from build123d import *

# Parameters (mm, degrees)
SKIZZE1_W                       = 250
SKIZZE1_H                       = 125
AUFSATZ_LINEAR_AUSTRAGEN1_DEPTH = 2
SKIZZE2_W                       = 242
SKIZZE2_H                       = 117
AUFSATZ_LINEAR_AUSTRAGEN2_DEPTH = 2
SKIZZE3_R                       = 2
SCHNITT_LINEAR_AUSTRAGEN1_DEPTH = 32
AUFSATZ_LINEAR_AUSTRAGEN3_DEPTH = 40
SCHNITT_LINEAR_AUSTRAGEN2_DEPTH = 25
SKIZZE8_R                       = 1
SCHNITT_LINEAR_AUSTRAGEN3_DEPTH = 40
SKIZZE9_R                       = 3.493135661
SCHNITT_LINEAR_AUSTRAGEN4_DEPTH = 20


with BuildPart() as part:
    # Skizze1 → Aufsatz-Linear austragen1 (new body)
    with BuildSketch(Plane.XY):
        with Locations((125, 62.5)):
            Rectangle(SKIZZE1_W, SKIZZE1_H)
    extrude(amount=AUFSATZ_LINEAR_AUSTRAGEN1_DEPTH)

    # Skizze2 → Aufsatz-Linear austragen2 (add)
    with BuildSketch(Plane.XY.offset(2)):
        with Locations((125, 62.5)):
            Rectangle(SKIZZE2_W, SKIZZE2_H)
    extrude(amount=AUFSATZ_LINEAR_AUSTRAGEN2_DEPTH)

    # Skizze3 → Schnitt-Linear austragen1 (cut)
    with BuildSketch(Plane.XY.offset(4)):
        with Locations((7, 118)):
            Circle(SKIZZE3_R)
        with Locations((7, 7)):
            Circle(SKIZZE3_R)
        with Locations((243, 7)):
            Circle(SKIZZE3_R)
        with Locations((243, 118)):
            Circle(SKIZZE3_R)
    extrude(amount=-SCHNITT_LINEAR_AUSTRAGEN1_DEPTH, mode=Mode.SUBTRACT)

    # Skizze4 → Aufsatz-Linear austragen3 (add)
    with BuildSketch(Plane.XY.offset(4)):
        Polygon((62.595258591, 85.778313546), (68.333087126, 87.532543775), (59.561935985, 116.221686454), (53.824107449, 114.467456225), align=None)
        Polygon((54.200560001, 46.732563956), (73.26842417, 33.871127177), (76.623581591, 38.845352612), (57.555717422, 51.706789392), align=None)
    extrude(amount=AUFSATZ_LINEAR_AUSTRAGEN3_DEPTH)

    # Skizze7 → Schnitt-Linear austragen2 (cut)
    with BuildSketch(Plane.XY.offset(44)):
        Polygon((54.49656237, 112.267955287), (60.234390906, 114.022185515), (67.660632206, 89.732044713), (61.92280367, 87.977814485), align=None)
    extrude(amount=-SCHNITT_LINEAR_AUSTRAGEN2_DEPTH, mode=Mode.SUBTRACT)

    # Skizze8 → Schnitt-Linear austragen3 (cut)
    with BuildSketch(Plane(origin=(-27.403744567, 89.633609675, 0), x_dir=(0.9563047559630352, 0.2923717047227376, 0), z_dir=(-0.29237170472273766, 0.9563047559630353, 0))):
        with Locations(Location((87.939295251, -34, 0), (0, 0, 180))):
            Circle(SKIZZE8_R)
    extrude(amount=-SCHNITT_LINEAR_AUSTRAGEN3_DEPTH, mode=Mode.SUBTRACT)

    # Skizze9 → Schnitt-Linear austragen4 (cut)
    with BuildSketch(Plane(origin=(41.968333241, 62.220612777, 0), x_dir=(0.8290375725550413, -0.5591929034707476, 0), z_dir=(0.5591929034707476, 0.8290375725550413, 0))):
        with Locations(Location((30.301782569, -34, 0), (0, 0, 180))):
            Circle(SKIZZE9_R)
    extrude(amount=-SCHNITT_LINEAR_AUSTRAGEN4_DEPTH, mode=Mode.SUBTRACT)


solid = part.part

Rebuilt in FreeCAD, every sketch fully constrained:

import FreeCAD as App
import Part
import Sketcher
from FreeCAD import Vector
Q = App.Units.Quantity


def add_polygon(sketch, points):
    """Adds a closed chain of lines whose ends are joined by coincident constraints."""
    first, n = sketch.GeometryCount, len(points)
    for a, b in zip(points, points[1:] + points[:1]):
        sketch.addGeometry(Part.LineSegment(App.Vector(*a, 0), App.Vector(*b, 0)), False)
    for i in range(n):
        sketch.addConstraint(Sketcher.Constraint("Coincident", first + i, 2, first + (i + 1) % n, 1))

doc = App.newDocument("Part")
body = doc.addObject("PartDesign::Body", "Body")

sketch1 = doc.addObject("Sketcher::SketchObject", "Sketch")
body.addObject(sketch1)
sketch1.AttachmentSupport = (doc.XY_Plane, [""])
sketch1.MapMode = "FlatFace"
add_polygon(sketch1, [(0, 125), (0, 0), (250, 0), (250, 125)])
sketch1.addConstraint([
    Sketcher.Constraint("Vertical", 0),
    Sketcher.Constraint("Horizontal", 1),
    Sketcher.Constraint("Vertical", 2),
    Sketcher.Constraint("Horizontal", 3),
    Sketcher.Constraint("Coincident", 0, 2, -1, 1),
    Sketcher.Constraint("DistanceX", 1, 1, 1, 2, 250.0),
    Sketcher.Constraint("DistanceY", 0, 2, 0, 1, 125.0),
])
pad1 = doc.addObject("PartDesign::Pad", "Pad")
body.addObject(pad1)
pad1.Profile = sketch1
pad1.Length = 2

sketch2 = doc.addObject("Sketcher::SketchObject", "Sketch001")
body.addObject(sketch2)
sketch2.AttachmentSupport = (doc.XY_Plane, [""])
sketch2.MapMode = "FlatFace"
sketch2.AttachmentOffset = App.Placement(Vector(0, 0, 2), App.Rotation())
add_polygon(sketch2, [(4, 121), (4, 4), (246, 4), (246, 121)])
sketch2.addConstraint([
    Sketcher.Constraint("Vertical", 0),
    Sketcher.Constraint("Horizontal", 1),
    Sketcher.Constraint("Vertical", 2),
    Sketcher.Constraint("Horizontal", 3),
    Sketcher.Constraint("DistanceX", 1, 1, 1, 2, 242.0),
    Sketcher.Constraint("DistanceY", 0, 2, 0, 1, 117.0),
    Sketcher.Constraint("DistanceX", -1, 1, 0, 2, 4.0),
    Sketcher.Constraint("DistanceY", -1, 1, 0, 2, 4.0),
])
pad2 = doc.addObject("PartDesign::Pad", "Pad001")
body.addObject(pad2)
pad2.Profile = sketch2
pad2.Length = 2

sketch3 = doc.addObject("Sketcher::SketchObject", "Sketch002")
body.addObject(sketch3)
sketch3.AttachmentSupport = (doc.XY_Plane, [""])
sketch3.MapMode = "FlatFace"
sketch3.AttachmentOffset = App.Placement(Vector(0, 0, 4), App.Rotation())
sketch3.addGeometry([
    Part.Circle(Vector(7, 118, 0), Vector(0, 0, 1), 2),
    Part.Circle(Vector(7, 7, 0), Vector(0, 0, 1), 2),
    Part.Circle(Vector(243, 7, 0), Vector(0, 0, 1), 2),
    Part.Circle(Vector(243, 118, 0), Vector(0, 0, 1), 2),
], False)
sketch3.addConstraint([
    Sketcher.Constraint("Equal", 0, 1),
    Sketcher.Constraint("Equal", 1, 2),
    Sketcher.Constraint("Equal", 2, 3),
    Sketcher.Constraint("Horizontal", 1, 3, 2, 3),
    Sketcher.Constraint("Horizontal", 0, 3, 3, 3),
    Sketcher.Constraint("Vertical", 0, 3, 1, 3),
    Sketcher.Constraint("Vertical", 2, 3, 3, 3),
    Sketcher.Constraint("Diameter", 0, 4.0),
    Sketcher.Constraint("DistanceX", -1, 1, 0, 3, 7.0),
    Sketcher.Constraint("DistanceY", -1, 1, 0, 3, 118.0),
    Sketcher.Constraint("DistanceY", -1, 1, 1, 3, 7.0),
    Sketcher.Constraint("DistanceX", -1, 1, 2, 3, 243.0),
])
pocket1 = doc.addObject("PartDesign::Pocket", "Pocket")
body.addObject(pocket1)
pocket1.Profile = sketch3
pocket1.Length = 32

sketch4 = doc.addObject("Sketcher::SketchObject", "Sketch003")
body.addObject(sketch4)
sketch4.AttachmentSupport = (doc.XY_Plane, [""])
sketch4.MapMode = "FlatFace"
sketch4.AttachmentOffset = App.Placement(Vector(0, 0, 4), App.Rotation())
add_polygon(sketch4, [(62.595259, 85.778314), (68.333087, 87.532544), (59.561936, 116.221686), (53.824107, 114.467456)])
add_polygon(sketch4, [(54.20056, 46.732564), (73.268424, 33.871127), (76.623582, 38.845353), (57.555717, 51.706789)])
sketch4.addConstraint([
    Sketcher.Constraint("Perpendicular", 0, 1),
    Sketcher.Constraint("Perpendicular", 1, 2),
    Sketcher.Constraint("Perpendicular", 2, 3),
    Sketcher.Constraint("Perpendicular", 4, 5),
    Sketcher.Constraint("Perpendicular", 5, 6),
    Sketcher.Constraint("Perpendicular", 6, 7),
    Sketcher.Constraint("Equal", 2, 5),
    Sketcher.Constraint("Angle", 0, Q("17 deg")),
    Sketcher.Constraint("Angle", 4, Q("-34 deg")),
    Sketcher.Constraint("Distance", 0, 6.0),
    Sketcher.Constraint("Distance", 1, 30.0),
    Sketcher.Constraint("Distance", 4, 23.0),
    Sketcher.Constraint("DistanceX", 7, 2, 3, 2, 8.394699),
    Sketcher.Constraint("DistanceX", -1, 1, 3, 2, 62.595259),
    Sketcher.Constraint("DistanceY", -1, 1, 6, 2, 51.706789),
    Sketcher.Constraint("DistanceY", 4, 2, 2, 2, 80.596329),
])
pad3 = doc.addObject("PartDesign::Pad", "Pad002")
body.addObject(pad3)
pad3.Profile = sketch4
pad3.Length = 40

sketch5 = doc.addObject("Sketcher::SketchObject", "Sketch004")
body.addObject(sketch5)
sketch5.AttachmentSupport = (doc.XY_Plane, [""])
sketch5.MapMode = "FlatFace"
sketch5.AttachmentOffset = App.Placement(Vector(0, 0, 44), App.Rotation())
add_polygon(sketch5, [(60.234391, 114.022186), (54.496562, 112.267955), (61.922804, 87.977814), (67.660632, 89.732045)])
sketch5.addConstraint([
    Sketcher.Constraint("Perpendicular", 0, 1),
    Sketcher.Constraint("Perpendicular", 1, 2),
    Sketcher.Constraint("Perpendicular", 2, 3),
    Sketcher.Constraint("Angle", 0, Q("-163 deg")),
    Sketcher.Constraint("Distance", 0, 6.0),
    Sketcher.Constraint("Distance", 1, 25.4),
    Sketcher.Constraint("DistanceX", -1, 1, 3, 2, 60.234391),
    Sketcher.Constraint("DistanceY", -1, 1, 0, 2, 112.267955),
])
pocket2 = doc.addObject("PartDesign::Pocket", "Pocket001")
body.addObject(pocket2)
pocket2.Profile = sketch5
pocket2.Length = 25

sketch6 = doc.addObject("Sketcher::SketchObject", "Sketch005")
body.addObject(sketch6)
sketch6.Placement = App.Placement(Vector(-27.403745, 89.63361, 0), App.Rotation(Vector(0.956304756, 0.292371705, 0), Vector(0, 0, -1), Vector(-0.292371705, 0.956304756, 0), "ZXY"))
sketch6.addGeometry(Part.Circle(Vector(87.939295, -34, 0), Vector(0, 0, 1), 1), False)
sketch6.addConstraint([
    Sketcher.Constraint("Diameter", 0, 2.0),
    Sketcher.Constraint("DistanceY", 0, 3, -1, 1, 34.0),
    Sketcher.Constraint("DistanceX", -1, 1, 0, 3, 87.939295),
])
pocket3 = doc.addObject("PartDesign::Pocket", "Pocket002")
body.addObject(pocket3)
pocket3.Profile = sketch6
pocket3.Length = 40

sketch7 = doc.addObject("Sketcher::SketchObject", "Sketch006")
body.addObject(sketch7)
sketch7.Placement = App.Placement(Vector(41.968333, 62.220613, 0), App.Rotation(Vector(0.829037573, -0.559192903, 0), Vector(0, 0, -1), Vector(0.559192903, 0.829037573, 0), "ZXY"))
sketch7.addGeometry(Part.Circle(Vector(30.301783, -34, 0), Vector(0, 0, 1), 3.493136), False)
sketch7.addConstraint([
    Sketcher.Constraint("DistanceY", 0, 3, -1, 1, 34.0),
    Sketcher.Constraint("Diameter", 0, 6.986271),
    Sketcher.Constraint("DistanceX", -1, 1, 0, 3, 30.301783),
])
pocket4 = doc.addObject("PartDesign::Pocket", "Pocket003")
body.addObject(pocket4)
pocket4.Profile = sketch7
pocket4.Length = 20

doc.recompute()
